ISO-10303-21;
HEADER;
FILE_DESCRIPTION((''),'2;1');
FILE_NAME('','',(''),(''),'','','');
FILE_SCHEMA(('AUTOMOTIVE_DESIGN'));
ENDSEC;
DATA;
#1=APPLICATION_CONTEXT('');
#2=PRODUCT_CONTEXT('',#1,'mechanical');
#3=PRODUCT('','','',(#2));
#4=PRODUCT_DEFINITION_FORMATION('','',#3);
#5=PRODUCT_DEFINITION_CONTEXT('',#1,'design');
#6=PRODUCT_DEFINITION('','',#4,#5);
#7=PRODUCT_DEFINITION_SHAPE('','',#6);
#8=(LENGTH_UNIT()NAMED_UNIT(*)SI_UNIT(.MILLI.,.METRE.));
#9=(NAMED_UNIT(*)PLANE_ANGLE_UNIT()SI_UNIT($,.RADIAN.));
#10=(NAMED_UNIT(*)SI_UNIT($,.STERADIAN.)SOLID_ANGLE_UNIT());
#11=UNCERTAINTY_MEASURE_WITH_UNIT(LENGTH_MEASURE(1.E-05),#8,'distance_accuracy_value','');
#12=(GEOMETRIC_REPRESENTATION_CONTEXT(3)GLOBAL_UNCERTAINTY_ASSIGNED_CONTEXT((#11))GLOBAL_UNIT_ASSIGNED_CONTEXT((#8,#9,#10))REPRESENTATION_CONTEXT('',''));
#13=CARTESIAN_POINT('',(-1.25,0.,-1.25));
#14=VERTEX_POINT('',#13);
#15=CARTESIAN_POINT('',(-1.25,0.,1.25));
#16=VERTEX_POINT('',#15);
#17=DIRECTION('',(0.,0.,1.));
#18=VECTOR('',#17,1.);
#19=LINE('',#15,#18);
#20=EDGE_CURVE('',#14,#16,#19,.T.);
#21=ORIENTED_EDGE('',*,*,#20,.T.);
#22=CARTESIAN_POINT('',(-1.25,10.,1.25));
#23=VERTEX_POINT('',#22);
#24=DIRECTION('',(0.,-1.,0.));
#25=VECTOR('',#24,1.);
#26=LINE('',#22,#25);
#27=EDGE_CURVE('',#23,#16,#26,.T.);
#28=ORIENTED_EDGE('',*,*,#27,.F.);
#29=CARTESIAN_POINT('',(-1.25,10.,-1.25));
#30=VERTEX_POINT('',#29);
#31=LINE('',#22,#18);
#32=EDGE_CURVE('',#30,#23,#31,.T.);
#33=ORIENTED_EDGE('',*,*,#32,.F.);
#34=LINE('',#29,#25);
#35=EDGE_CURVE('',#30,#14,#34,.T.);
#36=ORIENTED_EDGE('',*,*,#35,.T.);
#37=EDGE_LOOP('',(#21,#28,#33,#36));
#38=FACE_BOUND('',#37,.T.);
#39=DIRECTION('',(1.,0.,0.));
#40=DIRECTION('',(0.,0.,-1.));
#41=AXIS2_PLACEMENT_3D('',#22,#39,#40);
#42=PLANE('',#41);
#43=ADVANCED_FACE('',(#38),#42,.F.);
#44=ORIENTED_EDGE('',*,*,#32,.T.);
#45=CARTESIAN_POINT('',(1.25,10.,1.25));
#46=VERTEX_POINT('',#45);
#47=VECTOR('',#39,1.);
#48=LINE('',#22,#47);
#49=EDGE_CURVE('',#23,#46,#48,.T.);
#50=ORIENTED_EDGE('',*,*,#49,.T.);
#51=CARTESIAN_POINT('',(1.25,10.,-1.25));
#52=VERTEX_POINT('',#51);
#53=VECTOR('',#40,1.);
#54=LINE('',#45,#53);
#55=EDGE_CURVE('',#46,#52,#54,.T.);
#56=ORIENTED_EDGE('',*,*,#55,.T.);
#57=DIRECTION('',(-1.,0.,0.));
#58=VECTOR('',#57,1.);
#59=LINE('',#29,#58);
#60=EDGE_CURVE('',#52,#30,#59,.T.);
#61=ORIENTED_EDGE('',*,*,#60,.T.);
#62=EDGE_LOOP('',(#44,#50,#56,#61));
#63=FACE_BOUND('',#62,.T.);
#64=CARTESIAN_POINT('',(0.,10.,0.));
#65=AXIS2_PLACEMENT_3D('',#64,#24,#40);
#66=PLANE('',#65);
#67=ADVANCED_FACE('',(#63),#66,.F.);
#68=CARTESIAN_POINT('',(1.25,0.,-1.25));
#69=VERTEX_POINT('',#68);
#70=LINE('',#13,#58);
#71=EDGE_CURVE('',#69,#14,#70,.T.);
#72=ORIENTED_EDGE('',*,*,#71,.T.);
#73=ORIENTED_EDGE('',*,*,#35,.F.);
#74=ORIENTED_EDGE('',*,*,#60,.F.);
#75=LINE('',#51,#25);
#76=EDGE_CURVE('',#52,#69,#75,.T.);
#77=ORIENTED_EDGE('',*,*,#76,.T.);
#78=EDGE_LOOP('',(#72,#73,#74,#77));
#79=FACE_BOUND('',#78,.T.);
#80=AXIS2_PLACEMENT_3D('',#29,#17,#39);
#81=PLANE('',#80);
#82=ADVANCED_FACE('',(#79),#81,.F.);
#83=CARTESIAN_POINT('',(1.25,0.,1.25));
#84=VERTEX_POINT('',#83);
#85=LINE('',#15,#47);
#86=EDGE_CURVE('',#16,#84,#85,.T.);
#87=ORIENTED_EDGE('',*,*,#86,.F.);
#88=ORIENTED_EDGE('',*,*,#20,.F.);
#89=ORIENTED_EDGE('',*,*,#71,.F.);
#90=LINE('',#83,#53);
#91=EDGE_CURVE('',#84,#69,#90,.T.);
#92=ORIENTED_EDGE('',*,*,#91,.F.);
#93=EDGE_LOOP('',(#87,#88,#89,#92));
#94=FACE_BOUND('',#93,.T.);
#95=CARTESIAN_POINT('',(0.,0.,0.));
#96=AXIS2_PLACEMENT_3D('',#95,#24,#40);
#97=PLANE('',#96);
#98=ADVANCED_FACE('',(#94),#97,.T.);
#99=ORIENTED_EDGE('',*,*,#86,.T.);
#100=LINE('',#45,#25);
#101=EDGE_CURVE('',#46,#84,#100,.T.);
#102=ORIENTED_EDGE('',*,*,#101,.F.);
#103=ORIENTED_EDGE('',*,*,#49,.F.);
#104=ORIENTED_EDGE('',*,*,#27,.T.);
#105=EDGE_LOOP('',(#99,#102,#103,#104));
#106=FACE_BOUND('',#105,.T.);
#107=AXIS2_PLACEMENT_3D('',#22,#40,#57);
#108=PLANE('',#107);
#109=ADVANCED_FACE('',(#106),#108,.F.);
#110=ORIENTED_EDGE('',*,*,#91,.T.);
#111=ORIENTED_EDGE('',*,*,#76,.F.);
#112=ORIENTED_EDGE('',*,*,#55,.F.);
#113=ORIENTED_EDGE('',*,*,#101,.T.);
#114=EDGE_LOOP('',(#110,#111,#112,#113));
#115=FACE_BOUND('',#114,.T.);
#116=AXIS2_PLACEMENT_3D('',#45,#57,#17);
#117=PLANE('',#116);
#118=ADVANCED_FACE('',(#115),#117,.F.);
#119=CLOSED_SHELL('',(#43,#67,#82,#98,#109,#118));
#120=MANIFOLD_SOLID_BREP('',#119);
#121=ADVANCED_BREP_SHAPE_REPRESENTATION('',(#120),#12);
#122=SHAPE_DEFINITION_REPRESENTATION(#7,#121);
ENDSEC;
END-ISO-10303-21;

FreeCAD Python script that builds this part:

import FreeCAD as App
import Part
import Sketcher

V = App.Vector
Q = App.Units.Quantity

doc = App.newDocument("Part")
body = doc.addObject("PartDesign::Body", "Body")

# Sketch on XZ plane
sketch1 = body.newObject("Sketcher::SketchObject", "Sketch")
sketch1.AttachmentSupport = (doc.getObject("XZ_Plane"), [""])
sketch1.MapMode = "FlatFace"
sketch1.addGeometry(Part.LineSegment(V(-1.25, -1.25, 0), V(-1.25, 1.25, 0)), False)
sketch1.addGeometry(Part.LineSegment(V(-1.25, 1.25, 0), V(1.25, 1.25, 0)), False)
sketch1.addGeometry(Part.LineSegment(V(1.25, 1.25, 0), V(1.25, -1.25, 0)), False)
sketch1.addGeometry(Part.LineSegment(V(1.25, -1.25, 0), V(-1.25, -1.25, 0)), False)
sketch1.addConstraint(Sketcher.Constraint("Coincident", 0, 2, 1, 1))
sketch1.addConstraint(Sketcher.Constraint("Coincident", 1, 2, 2, 1))
sketch1.addConstraint(Sketcher.Constraint("Coincident", 2, 2, 3, 1))
sketch1.addConstraint(Sketcher.Constraint("Coincident", 3, 2, 0, 1))
sketch1.addConstraint(Sketcher.Constraint("Vertical", 0))
sketch1.addConstraint(Sketcher.Constraint("Horizontal", 1))
sketch1.addConstraint(Sketcher.Constraint("Vertical", 2))
sketch1.addConstraint(Sketcher.Constraint("Horizontal", 3))
sketch1.addConstraint(Sketcher.Constraint("Symmetric", 0, 2, 2, 2, -1, 1))
sketch1.addConstraint(Sketcher.Constraint("Equal", 3, 0))
sketch1.addConstraint(Sketcher.Constraint("DistanceX", 1, 1, 1, 2, Q("2.5 mm")))
pad1 = body.newObject("PartDesign::Pad", "Pad")
pad1.Profile = sketch1
pad1.Length = 10
pad1.Reversed = True

doc.recompute()
